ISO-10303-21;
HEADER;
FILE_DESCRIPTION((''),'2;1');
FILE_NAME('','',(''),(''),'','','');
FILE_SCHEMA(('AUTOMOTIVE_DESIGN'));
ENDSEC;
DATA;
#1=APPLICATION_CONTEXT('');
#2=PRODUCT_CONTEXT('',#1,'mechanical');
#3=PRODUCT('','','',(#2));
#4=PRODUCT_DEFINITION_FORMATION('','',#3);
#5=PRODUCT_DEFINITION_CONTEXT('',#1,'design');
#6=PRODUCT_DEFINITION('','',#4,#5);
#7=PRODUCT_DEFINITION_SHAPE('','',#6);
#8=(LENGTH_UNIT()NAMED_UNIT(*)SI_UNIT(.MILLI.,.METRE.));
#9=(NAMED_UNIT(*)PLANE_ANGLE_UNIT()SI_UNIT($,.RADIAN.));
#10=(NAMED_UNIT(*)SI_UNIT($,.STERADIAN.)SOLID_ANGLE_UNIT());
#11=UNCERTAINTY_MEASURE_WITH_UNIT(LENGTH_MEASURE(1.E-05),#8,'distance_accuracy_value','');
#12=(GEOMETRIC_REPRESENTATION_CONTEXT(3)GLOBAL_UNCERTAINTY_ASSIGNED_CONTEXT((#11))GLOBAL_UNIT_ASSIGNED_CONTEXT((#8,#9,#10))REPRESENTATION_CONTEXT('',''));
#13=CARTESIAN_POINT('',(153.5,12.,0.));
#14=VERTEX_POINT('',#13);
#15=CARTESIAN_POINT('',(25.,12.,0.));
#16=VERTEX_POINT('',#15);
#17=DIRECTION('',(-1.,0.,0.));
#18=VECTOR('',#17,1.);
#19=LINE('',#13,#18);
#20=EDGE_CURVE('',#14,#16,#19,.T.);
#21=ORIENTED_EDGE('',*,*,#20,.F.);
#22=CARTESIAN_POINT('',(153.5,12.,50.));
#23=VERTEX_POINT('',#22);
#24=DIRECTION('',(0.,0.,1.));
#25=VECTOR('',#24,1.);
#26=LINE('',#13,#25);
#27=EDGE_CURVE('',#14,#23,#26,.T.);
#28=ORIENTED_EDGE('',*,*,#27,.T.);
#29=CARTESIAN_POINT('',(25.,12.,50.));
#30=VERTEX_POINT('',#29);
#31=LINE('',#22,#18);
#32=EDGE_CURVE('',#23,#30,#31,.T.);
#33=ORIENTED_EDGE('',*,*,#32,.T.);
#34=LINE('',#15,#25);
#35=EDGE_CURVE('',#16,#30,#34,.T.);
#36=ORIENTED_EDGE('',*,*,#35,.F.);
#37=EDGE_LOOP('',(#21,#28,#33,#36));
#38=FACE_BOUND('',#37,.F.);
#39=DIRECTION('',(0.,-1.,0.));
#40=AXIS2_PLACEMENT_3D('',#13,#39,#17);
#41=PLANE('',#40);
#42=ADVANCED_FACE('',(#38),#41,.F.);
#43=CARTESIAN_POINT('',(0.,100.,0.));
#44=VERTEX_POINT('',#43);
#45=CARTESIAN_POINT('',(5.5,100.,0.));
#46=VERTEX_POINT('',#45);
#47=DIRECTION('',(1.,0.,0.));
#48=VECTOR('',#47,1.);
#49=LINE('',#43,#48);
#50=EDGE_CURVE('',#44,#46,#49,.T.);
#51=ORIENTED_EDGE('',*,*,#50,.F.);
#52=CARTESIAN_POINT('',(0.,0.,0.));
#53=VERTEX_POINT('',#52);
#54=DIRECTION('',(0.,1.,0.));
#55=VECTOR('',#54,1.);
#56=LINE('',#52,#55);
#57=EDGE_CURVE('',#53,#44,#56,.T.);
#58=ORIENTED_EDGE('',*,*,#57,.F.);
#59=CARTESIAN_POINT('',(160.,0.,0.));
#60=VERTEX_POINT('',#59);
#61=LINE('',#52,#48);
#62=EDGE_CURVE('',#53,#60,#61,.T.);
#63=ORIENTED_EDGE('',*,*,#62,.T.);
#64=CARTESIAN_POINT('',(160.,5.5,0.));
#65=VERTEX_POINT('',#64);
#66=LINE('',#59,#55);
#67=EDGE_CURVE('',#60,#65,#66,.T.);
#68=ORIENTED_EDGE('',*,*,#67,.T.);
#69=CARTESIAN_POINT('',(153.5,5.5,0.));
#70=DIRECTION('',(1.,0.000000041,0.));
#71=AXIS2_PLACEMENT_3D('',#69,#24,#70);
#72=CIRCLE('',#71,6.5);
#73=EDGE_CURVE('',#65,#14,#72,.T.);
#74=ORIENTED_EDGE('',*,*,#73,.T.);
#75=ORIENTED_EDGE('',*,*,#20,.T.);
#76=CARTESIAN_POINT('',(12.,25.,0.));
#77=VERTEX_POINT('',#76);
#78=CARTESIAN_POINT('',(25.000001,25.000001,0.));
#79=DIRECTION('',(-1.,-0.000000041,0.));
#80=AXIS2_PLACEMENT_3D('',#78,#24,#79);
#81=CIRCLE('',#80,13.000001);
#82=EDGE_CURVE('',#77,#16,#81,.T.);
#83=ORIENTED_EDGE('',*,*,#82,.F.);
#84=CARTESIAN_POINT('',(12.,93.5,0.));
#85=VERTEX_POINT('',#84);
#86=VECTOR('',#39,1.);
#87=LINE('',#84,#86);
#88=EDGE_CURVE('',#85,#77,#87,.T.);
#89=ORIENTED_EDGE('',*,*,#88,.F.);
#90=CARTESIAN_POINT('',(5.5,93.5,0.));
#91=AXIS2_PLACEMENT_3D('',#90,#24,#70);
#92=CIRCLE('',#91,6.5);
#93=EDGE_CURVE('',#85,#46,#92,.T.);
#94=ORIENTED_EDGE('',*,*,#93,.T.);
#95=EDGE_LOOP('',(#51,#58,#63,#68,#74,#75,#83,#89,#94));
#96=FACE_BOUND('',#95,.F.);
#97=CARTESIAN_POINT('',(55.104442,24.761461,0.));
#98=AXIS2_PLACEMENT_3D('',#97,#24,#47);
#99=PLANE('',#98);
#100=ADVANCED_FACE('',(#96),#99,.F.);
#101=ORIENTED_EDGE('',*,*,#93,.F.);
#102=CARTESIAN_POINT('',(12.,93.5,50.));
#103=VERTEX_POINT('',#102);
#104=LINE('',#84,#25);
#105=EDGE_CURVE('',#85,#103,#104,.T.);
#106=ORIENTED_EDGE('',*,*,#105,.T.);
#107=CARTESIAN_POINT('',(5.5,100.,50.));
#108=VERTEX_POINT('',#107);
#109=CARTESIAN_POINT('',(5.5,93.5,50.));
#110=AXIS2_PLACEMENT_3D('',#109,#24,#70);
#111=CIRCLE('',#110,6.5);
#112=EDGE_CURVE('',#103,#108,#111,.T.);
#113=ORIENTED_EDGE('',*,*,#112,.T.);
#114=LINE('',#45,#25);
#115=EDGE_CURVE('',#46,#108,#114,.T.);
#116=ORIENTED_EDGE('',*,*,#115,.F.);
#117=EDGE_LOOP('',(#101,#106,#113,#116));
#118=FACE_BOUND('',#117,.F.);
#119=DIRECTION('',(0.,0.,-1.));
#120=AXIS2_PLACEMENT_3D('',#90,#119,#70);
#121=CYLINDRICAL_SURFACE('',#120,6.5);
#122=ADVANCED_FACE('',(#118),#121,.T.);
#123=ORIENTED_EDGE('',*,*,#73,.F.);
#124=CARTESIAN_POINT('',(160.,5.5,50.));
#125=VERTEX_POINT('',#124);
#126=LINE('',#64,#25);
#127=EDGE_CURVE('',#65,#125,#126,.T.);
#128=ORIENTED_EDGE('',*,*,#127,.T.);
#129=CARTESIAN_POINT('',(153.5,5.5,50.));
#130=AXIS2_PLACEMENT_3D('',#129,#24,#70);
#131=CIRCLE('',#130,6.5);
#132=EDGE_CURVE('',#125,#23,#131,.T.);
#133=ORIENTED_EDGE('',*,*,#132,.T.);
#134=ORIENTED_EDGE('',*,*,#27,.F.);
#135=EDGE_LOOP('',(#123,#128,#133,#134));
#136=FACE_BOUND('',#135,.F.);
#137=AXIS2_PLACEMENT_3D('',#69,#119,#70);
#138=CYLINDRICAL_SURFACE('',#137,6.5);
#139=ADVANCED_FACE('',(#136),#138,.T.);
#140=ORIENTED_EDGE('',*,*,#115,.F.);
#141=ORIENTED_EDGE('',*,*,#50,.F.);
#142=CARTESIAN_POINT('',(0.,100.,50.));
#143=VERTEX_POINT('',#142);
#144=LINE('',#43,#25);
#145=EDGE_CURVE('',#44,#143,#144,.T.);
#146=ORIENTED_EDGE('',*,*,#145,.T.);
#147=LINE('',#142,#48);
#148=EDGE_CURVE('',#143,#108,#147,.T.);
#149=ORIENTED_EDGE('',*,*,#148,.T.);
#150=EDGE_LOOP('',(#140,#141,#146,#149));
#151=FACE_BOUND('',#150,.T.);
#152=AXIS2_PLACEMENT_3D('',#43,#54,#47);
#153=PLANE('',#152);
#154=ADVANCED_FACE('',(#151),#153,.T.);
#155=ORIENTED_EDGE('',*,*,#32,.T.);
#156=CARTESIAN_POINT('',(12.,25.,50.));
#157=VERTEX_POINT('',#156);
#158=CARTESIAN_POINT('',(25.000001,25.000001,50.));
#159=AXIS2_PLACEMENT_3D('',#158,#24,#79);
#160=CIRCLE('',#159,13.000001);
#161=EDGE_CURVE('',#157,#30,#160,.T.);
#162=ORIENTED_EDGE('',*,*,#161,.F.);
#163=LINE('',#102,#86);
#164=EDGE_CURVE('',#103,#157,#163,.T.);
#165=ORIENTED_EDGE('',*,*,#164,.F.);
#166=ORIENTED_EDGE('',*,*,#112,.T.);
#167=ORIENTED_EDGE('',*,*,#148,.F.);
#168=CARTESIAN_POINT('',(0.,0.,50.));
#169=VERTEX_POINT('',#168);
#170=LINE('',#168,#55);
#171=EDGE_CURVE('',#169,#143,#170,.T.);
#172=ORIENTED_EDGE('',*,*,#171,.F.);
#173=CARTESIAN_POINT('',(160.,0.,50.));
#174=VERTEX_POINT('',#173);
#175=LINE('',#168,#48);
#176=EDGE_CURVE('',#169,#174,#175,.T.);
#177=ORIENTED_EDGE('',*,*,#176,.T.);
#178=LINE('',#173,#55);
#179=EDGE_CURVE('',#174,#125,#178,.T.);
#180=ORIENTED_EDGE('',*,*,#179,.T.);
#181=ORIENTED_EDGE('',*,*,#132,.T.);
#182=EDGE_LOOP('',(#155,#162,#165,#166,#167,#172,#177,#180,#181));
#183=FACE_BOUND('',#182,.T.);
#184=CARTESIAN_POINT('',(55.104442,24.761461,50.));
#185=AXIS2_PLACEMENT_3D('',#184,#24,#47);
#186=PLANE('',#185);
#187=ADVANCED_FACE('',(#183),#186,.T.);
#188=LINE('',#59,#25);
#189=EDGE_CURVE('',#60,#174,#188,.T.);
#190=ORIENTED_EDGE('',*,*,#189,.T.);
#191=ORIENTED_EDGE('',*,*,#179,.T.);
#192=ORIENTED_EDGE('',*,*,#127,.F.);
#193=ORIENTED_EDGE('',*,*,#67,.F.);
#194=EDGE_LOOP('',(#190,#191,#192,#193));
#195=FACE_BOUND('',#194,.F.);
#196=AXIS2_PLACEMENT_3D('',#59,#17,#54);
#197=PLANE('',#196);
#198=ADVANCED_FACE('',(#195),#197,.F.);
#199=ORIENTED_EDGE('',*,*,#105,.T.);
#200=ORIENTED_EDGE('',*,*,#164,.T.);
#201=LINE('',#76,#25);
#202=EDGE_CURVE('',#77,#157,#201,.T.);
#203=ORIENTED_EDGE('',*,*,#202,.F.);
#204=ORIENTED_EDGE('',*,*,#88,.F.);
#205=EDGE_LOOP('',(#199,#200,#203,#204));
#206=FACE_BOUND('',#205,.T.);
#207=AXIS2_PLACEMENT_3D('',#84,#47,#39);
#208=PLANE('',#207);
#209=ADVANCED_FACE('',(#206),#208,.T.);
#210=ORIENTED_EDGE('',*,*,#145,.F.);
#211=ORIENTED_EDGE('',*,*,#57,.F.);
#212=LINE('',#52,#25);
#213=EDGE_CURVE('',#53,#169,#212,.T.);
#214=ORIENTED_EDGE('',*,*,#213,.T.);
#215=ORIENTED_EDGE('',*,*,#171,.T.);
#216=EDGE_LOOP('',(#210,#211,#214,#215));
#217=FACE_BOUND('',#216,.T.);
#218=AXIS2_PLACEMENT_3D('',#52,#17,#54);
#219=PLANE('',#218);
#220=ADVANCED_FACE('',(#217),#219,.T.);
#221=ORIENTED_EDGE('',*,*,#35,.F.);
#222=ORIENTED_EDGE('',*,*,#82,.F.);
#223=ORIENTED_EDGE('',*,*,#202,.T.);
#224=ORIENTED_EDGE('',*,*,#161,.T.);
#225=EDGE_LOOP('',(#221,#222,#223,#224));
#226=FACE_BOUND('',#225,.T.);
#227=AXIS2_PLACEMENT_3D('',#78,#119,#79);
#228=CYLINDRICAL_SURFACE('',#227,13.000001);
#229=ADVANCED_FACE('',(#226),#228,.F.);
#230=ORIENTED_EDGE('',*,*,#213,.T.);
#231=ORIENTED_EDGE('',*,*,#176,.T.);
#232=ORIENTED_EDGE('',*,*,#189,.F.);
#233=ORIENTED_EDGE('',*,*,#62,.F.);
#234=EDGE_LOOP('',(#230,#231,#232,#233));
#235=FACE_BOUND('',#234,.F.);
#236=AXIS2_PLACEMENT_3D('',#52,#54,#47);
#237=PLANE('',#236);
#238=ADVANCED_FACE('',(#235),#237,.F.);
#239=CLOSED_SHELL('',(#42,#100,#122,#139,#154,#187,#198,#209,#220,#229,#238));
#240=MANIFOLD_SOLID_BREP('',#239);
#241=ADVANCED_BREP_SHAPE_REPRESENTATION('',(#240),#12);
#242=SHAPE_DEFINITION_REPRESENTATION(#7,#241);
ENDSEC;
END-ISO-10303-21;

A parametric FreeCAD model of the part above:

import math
import FreeCAD as App
import Part
import Sketcher

V = App.Vector

doc = App.newDocument("Part")
params = doc.addObject("Spreadsheet::Sheet", "Params")
for row, (alias, value) in enumerate([
    ("sketch1_radius", "13.000001 mm"),
    ("sketch1_radius2", "6.5 mm"),
    ("sketch1_width", "160 mm"),
    ("sketch1_height", "100 mm"),
    ("sketch1_width2", "128.5 mm"),
    ("pad1_length", "50 mm"),
], start=1):
    params.set(f"A{row}", alias)
    params.set(f"B{row}", "=" + value)
    params.setAlias(f"B{row}", alias)

body = doc.addObject("PartDesign::Body", "Body")

# Sketch on XY plane
sketch1 = doc.addObject("Sketcher::SketchObject", "Sketch")
body.addObject(sketch1)
sketch1.AttachmentSupport = (doc.XY_Plane, [""])
sketch1.MapMode = "FlatFace"
sketch1.addGeometry([
    Part.LineSegment(V(0, 0, 0), V(160, 0, 0)),  # 0
    Part.LineSegment(V(160, 0, 0), V(160, 6, 0)),  # 1
    Part.ArcOfCircle(Part.Circle(V(153, 5, 0), V(0, 0, 1), 7), math.radians(0), math.radians(90)),  # 2
    Part.LineSegment(V(154, 12, 0), V(25, 12, 0)),  # 3
    Part.ArcOfCircle(Part.Circle(V(25, 25, 0), V(0, 0, 1), 13), math.radians(-180), math.radians(-90)),  # 4
    Part.LineSegment(V(12, 25, 0), V(12, 94, 0)),  # 5
    Part.ArcOfCircle(Part.Circle(V(5, 93, 0), V(0, 0, 1), 7), math.radians(0), math.radians(90)),  # 6
    Part.LineSegment(V(6, 100, 0), V(0, 100, 0)),  # 7
    Part.LineSegment(V(0, 100, 0), V(0, 0, 0)),  # 8
], False)
sketch1.addConstraint([
    Sketcher.Constraint("Coincident", 0, 2, 1, 1),
    Sketcher.Constraint("Tangent", 1, 2, 2, 1),
    Sketcher.Constraint("Tangent", 2, 2, 3, 1),
    Sketcher.Constraint("Tangent", 3, 2, 4, 2),
    Sketcher.Constraint("Tangent", 4, 1, 5, 1),
    Sketcher.Constraint("Tangent", 5, 2, 6, 1),
    Sketcher.Constraint("Tangent", 6, 2, 7, 1),
    Sketcher.Constraint("Coincident", 7, 2, 8, 1),
    Sketcher.Constraint("Coincident", 8, 2, 0, 1),
    Sketcher.Constraint("Horizontal", 0),
    Sketcher.Constraint("Vertical", 1),
    Sketcher.Constraint("Horizontal", 3),
    Sketcher.Constraint("Vertical", 5),
    Sketcher.Constraint("Horizontal", 7),
    Sketcher.Constraint("Vertical", 8),
    Sketcher.Constraint("Coincident", 8, 2, -1, 1),
    Sketcher.Constraint("Equal", 2, 6),
    Sketcher.Constraint("Equal", 7, 1),
    Sketcher.Constraint("Radius", 4, 13.000001),
    Sketcher.Constraint("Radius", 2, 6.5),
    Sketcher.Constraint("DistanceX", 0, 1, 0, 2, 160.0),
    Sketcher.Constraint("DistanceY", 8, 2, 8, 1, 100.0),
    Sketcher.Constraint("DistanceX", 3, 2, 3, 1, 128.5),
])
sketch1.setExpression("Constraints[18]", "Params.sketch1_radius")
sketch1.setExpression("Constraints[19]", "Params.sketch1_radius2")
sketch1.setExpression("Constraints[20]", "Params.sketch1_width")
sketch1.setExpression("Constraints[21]", "Params.sketch1_height")
sketch1.setExpression("Constraints[22]", "Params.sketch1_width2")
pad1 = doc.addObject("PartDesign::Pad", "Pad")
body.addObject(pad1)
pad1.Profile = sketch1
pad1.setExpression("Length", "Params.pad1_length")

doc.recompute()
